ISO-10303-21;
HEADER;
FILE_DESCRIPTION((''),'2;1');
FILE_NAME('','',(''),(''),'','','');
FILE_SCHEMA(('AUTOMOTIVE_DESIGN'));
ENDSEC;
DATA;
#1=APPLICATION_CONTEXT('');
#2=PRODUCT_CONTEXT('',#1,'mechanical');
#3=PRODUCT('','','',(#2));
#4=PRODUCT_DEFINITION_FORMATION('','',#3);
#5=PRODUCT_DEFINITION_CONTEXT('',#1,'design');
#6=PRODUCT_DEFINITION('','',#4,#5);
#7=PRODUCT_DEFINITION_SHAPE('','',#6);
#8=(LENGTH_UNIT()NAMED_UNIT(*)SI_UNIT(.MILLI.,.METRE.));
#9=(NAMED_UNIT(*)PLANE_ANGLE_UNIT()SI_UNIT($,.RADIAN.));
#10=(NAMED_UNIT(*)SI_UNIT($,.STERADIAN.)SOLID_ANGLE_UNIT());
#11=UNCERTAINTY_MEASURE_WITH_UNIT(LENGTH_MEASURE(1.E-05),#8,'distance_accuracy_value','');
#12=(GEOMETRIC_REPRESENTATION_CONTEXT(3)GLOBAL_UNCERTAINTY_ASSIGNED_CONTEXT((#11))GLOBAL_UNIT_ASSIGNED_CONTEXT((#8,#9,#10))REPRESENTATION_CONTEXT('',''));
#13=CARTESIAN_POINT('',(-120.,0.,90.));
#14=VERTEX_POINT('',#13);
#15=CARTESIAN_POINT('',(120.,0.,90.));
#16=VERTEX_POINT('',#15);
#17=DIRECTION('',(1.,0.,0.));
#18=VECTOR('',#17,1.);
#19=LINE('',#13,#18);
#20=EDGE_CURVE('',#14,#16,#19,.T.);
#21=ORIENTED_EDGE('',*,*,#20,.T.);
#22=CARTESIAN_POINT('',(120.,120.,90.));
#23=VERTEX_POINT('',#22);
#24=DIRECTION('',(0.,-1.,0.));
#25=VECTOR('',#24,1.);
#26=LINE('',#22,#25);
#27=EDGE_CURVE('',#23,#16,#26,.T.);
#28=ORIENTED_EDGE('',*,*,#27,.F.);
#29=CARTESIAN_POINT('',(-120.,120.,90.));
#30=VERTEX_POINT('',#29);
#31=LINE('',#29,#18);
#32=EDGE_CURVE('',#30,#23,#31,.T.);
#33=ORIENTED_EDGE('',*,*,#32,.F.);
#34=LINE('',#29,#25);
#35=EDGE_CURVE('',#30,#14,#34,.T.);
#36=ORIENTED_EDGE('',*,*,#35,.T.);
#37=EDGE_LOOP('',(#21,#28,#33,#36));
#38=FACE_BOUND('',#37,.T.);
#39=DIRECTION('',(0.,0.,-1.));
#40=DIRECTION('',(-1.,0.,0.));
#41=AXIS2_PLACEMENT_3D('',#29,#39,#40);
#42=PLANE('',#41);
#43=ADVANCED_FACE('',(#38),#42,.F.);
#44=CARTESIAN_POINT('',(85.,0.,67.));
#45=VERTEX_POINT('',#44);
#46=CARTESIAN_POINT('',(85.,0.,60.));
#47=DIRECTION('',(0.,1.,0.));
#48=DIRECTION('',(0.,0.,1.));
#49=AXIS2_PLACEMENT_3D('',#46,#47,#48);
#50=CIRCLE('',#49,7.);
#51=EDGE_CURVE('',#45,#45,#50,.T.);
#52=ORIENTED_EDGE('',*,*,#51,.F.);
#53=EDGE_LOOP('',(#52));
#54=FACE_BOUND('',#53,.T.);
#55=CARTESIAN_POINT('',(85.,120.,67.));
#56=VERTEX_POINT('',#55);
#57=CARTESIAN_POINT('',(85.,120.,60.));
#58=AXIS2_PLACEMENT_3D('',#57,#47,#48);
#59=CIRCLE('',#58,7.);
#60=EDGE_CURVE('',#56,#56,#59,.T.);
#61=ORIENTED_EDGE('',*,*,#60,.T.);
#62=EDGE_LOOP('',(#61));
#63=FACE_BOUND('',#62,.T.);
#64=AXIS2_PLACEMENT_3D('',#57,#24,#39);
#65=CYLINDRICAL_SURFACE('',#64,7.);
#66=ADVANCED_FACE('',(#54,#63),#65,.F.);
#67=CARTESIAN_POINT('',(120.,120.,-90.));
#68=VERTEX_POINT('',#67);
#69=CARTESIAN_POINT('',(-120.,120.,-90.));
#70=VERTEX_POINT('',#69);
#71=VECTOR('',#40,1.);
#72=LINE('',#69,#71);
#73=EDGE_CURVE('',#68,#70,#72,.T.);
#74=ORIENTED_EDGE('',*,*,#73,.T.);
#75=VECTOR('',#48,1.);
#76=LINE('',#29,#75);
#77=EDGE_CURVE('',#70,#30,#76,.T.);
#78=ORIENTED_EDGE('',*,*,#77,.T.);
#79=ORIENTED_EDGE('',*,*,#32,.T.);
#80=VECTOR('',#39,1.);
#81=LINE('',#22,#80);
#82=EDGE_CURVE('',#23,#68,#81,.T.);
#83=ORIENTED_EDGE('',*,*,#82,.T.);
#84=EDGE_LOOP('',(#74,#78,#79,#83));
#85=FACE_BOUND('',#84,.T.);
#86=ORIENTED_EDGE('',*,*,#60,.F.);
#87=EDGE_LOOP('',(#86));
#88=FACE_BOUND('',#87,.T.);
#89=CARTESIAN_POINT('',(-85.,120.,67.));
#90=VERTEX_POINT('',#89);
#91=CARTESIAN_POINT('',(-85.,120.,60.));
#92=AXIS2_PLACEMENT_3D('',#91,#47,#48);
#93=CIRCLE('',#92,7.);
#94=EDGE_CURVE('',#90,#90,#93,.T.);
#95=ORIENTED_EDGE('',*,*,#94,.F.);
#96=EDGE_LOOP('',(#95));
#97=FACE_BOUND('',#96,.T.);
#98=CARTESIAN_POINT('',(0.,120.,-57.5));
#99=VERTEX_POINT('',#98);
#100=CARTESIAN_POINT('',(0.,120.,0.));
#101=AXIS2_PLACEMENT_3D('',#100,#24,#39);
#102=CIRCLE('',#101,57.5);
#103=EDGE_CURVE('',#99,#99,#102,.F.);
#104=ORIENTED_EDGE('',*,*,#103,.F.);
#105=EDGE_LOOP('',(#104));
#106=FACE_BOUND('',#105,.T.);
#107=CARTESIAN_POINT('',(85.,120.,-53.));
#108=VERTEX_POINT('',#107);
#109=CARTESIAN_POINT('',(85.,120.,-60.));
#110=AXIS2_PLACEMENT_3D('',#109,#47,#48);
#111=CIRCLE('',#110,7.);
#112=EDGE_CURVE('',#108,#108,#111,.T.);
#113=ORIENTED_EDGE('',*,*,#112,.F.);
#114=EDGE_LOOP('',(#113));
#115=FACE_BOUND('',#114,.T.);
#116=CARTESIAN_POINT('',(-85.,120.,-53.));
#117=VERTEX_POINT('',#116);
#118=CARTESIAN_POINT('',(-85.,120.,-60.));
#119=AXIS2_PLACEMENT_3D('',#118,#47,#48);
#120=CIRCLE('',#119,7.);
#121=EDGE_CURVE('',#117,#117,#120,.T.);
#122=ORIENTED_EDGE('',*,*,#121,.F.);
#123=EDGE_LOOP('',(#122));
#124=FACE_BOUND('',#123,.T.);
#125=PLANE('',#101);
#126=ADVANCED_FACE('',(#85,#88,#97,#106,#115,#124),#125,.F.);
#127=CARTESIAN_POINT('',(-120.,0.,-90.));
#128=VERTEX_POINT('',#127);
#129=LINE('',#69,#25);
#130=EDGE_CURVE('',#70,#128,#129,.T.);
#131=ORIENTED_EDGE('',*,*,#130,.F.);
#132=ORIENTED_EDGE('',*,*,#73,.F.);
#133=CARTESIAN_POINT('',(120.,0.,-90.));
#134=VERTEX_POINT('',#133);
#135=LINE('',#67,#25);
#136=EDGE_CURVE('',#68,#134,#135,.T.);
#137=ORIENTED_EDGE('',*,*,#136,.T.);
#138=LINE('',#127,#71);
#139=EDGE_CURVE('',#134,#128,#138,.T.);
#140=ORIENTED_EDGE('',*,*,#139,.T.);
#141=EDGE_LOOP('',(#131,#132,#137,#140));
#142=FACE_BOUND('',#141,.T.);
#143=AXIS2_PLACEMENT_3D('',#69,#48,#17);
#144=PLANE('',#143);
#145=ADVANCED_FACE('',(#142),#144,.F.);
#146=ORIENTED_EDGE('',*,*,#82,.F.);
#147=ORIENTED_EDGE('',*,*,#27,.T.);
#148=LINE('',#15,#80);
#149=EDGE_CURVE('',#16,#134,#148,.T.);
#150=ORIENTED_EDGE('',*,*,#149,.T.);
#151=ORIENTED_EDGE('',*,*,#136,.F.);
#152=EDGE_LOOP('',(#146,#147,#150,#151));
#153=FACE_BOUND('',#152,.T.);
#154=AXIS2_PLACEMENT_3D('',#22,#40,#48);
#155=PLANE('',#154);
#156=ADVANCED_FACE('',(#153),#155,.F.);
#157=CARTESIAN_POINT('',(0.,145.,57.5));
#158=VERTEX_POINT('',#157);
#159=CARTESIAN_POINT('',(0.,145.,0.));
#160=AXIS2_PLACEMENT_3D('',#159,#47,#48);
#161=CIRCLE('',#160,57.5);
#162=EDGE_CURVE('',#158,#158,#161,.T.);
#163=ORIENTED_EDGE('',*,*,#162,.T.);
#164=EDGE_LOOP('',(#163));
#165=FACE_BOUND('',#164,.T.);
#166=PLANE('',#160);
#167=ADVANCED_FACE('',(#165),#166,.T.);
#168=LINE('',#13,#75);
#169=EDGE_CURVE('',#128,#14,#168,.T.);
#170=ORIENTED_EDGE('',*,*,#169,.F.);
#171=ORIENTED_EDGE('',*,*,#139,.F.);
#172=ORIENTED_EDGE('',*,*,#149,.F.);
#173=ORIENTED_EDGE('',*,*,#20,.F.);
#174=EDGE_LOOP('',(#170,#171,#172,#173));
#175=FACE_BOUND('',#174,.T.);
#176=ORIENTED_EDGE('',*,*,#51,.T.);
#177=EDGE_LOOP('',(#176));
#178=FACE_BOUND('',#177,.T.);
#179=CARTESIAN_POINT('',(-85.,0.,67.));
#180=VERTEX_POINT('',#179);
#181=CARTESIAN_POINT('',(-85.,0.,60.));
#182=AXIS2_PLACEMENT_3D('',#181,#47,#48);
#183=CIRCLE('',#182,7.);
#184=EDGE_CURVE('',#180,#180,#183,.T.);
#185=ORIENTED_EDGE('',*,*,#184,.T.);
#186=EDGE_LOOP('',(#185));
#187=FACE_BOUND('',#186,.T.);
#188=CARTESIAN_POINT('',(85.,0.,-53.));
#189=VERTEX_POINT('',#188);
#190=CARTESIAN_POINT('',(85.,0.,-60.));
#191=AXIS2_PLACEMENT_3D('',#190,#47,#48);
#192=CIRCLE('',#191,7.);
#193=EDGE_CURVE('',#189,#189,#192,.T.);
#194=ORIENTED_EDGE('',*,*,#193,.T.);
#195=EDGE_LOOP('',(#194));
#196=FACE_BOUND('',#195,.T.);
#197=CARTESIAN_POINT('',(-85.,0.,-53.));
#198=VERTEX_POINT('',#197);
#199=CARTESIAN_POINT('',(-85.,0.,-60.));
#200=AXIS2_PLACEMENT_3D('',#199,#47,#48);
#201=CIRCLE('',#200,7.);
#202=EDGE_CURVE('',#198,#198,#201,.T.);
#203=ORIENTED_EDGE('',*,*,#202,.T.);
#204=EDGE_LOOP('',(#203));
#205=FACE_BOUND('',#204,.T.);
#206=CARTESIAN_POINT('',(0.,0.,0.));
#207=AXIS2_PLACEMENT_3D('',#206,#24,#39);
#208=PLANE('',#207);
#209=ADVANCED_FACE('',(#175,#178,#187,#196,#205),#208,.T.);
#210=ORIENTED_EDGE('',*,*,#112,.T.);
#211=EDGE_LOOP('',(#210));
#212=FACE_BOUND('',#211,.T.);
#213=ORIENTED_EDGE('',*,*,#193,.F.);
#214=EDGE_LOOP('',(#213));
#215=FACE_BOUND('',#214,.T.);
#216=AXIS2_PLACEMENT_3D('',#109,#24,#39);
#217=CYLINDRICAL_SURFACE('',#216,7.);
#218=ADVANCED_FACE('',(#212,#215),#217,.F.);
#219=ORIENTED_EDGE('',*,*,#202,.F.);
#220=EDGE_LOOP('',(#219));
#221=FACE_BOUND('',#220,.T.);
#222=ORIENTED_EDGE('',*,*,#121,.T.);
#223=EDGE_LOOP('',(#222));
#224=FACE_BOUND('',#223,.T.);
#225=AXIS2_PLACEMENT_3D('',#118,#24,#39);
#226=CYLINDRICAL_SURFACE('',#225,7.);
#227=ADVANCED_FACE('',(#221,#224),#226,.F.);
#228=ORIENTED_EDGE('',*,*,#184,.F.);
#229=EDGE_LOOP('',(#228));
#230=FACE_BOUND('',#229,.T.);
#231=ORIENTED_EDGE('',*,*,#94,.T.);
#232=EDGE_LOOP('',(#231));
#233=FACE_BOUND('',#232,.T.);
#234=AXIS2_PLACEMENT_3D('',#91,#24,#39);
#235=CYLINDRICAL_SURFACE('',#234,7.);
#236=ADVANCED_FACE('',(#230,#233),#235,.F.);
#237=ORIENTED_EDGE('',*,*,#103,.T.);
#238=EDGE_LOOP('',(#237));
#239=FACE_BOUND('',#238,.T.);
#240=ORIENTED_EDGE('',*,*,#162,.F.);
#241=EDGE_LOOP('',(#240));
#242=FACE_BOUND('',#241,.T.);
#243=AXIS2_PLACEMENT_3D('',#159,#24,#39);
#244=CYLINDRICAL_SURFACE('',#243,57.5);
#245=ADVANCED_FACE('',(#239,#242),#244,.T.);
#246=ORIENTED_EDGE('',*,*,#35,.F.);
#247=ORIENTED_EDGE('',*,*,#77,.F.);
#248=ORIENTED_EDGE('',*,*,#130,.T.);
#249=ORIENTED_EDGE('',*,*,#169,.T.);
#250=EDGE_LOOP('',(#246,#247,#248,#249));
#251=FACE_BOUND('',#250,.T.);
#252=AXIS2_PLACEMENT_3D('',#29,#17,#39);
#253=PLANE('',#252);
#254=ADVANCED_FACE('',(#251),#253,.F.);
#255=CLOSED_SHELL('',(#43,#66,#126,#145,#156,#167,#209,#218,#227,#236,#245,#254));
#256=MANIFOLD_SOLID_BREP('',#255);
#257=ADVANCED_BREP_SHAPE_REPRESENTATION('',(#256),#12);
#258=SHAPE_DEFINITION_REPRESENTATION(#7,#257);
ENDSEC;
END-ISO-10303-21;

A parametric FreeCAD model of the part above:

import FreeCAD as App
import Part
import Sketcher

V = App.Vector


def add_polygon(sketch, points):
    """Adds a closed chain of lines whose ends are joined by coincident constraints."""
    first, n = sketch.GeometryCount, len(points)
    for a, b in zip(points, points[1:] + points[:1]):
        sketch.addGeometry(Part.LineSegment(App.Vector(*a, 0), App.Vector(*b, 0)), False)
    for i in range(n):
        sketch.addConstraint(Sketcher.Constraint("Coincident", first + i, 2, first + (i + 1) % n, 1))

doc = App.newDocument("Part")
body = doc.addObject("PartDesign::Body", "Body")

sketch1 = doc.addObject("Sketcher::SketchObject", "Sketch")
body.addObject(sketch1)
sketch1.AttachmentSupport = (doc.XZ_Plane, [""])
sketch1.MapMode = "FlatFace"
add_polygon(sketch1, [(-120, -90), (-120, 90), (120, 90), (120, -90)])
sketch1.addGeometry(Part.Circle(V(-85, 60, 0), V(0, 0, 1), 7), False)
sketch1.addGeometry(Part.Circle(V(85, 60, 0), V(0, 0, 1), 7), False)
sketch1.addGeometry(Part.Circle(V(-85, -60, 0), V(0, 0, 1), 7), False)
sketch1.addGeometry(Part.Circle(V(85, -60, 0), V(0, 0, 1), 7), False)
sketch1.addConstraint([
    Sketcher.Constraint("Vertical", 0),
    Sketcher.Constraint("Horizontal", 1),
    Sketcher.Constraint("Vertical", 2),
    Sketcher.Constraint("Horizontal", 3),
    Sketcher.Constraint("Equal", 4, 5),
    Sketcher.Constraint("Equal", 5, 6),
    Sketcher.Constraint("Equal", 6, 7),
    Sketcher.Constraint("Symmetric", 5, 3, 6, 3, -1, 1),
    Sketcher.Constraint("Symmetric", 4, 3, 7, 3, -1, 1),
    Sketcher.Constraint("Symmetric", 0, 2, 2, 2, -1, 1),
    Sketcher.Constraint("Symmetric", 4, 3, 5, 3, -2),
    Sketcher.Constraint("Diameter", 4, 14.0),
    Sketcher.Constraint("DistanceX", 1, 1, 1, 2, 240.0),
    Sketcher.Constraint("DistanceY", 0, 1, 0, 2, 180.0),
    Sketcher.Constraint("DistanceX", 4, 3, -1, 1, 85.0),
    Sketcher.Constraint("DistanceY", -1, 1, 4, 3, 60.0),
])
pad1 = doc.addObject("PartDesign::Pad", "Pad")
body.addObject(pad1)
pad1.Profile = sketch1
pad1.Length = 120
pad1.Reversed = True

sketch2 = doc.addObject("Sketcher::SketchObject", "Sketch001")
body.addObject(sketch2)
sketch2.AttachmentSupport = (doc.XZ_Plane, [""])
sketch2.MapMode = "FlatFace"
sketch2.addGeometry(Part.Circle(V(0, 0, 0), V(0, 0, 1), 58), False)
sketch2.addConstraint([
    Sketcher.Constraint("Coincident", 0, 3, -1, 1),
    Sketcher.Constraint("Diameter", 0, 115.0),
])
pad2 = doc.addObject("PartDesign::Pad", "Pad001")
body.addObject(pad2)
pad2.Profile = sketch2
pad2.Length = 145
pad2.Reversed = True

doc.recompute()
